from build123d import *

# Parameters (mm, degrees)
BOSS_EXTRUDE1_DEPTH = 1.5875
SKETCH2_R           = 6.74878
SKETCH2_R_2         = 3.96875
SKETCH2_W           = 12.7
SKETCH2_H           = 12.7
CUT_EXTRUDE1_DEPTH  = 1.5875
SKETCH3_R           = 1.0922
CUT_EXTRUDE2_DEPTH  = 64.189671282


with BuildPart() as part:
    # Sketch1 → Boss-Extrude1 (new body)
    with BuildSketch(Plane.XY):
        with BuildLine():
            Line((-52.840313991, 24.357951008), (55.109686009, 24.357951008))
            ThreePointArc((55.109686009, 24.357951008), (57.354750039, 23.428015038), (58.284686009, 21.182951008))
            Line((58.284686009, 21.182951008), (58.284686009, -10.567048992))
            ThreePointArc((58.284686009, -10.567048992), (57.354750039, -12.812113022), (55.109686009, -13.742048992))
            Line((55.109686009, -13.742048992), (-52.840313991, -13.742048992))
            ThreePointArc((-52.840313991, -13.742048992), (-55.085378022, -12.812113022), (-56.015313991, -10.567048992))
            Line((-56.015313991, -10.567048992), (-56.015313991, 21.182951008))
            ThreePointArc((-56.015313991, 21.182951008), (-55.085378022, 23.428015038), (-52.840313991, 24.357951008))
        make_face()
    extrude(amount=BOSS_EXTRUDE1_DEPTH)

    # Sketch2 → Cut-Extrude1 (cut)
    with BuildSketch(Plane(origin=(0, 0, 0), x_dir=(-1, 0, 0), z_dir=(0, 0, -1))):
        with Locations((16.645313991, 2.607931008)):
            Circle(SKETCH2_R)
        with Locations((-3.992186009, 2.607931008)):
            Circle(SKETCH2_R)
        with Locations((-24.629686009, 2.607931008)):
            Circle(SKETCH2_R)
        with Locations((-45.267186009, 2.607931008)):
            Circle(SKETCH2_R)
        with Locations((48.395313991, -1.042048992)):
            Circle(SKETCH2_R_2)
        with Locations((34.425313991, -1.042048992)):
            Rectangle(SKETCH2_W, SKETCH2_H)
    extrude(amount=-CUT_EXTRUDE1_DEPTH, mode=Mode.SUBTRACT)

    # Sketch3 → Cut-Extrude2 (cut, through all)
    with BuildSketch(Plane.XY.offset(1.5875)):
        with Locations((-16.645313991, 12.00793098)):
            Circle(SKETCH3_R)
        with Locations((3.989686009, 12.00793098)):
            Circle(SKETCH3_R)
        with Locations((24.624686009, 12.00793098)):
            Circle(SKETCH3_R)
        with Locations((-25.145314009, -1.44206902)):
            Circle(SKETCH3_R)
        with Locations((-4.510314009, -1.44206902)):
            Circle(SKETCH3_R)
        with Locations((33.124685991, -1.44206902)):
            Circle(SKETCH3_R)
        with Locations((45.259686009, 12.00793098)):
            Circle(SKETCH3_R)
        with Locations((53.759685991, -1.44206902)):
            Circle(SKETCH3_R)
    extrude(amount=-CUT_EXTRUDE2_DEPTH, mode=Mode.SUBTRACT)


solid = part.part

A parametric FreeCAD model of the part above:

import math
import FreeCAD as App
import Part
import Sketcher
from FreeCAD import Vector
Q = App.Units.Quantity


def add_polygon(sketch, points):
    """Adds a closed chain of lines whose ends are joined by coincident constraints."""
    first, n = sketch.GeometryCount, len(points)
    for a, b in zip(points, points[1:] + points[:1]):
        sketch.addGeometry(Part.LineSegment(App.Vector(*a, 0), App.Vector(*b, 0)), False)
    for i in range(n):
        sketch.addConstraint(Sketcher.Constraint("Coincident", first + i, 2, first + (i + 1) % n, 1))

doc = App.newDocument("Part")
params = doc.addObject("Spreadsheet::Sheet", "Params")
for row, (alias, value) in enumerate([
    ("sketch1_radius", "0.125 in"),
    ("sketch1_width", "4.25 in"),
    ("sketch1_height", "1.25 in"),
    ("pad1_length", "0.0625 in"),
    ("sketch2_diameter", "0.3125 in"),
    ("sketch2_width", "0.5 in"),
    ("pocket1_length", "0.0625 in"),
    ("sketch3_diameter", "0.086 in"),
], start=1):
    params.set(f"A{row}", alias)
    params.set(f"B{row}", "=" + value)
    params.setAlias(f"B{row}", alias)

body = doc.addObject("PartDesign::Body", "Body")

# Sketch on XY plane
sketch1 = body.newObject("Sketcher::SketchObject", "Sketch")
sketch1.AttachmentSupport = (doc.getObject("XY_Plane"), [""])
sketch1.MapMode = "FlatFace"
sketch1.addGeometry(Part.LineSegment(Vector(55.109686, 24.357951, 0), Vector(-52.840314, 24.357951, 0)), False)
sketch1.addGeometry(Part.ArcOfCircle(Part.Circle(Vector(-52.840314, 21.182951, 0), Vector(0, 0, 1), 3.175), math.radians(90), math.radians(180)), False)
sketch1.addGeometry(Part.LineSegment(Vector(-56.015314, 21.182951, 0), Vector(-56.015314, -10.567049, 0)), False)
sketch1.addGeometry(Part.ArcOfCircle(Part.Circle(Vector(-52.840314, -10.567049, 0), Vector(0, 0, 1), 3.175), math.radians(180), math.radians(270)), False)
sketch1.addGeometry(Part.LineSegment(Vector(-52.840314, -13.742049, 0), Vector(55.109686, -13.742049, 0)), False)
sketch1.addGeometry(Part.ArcOfCircle(Part.Circle(Vector(55.109686, -10.567049, 0), Vector(0, 0, 1), 3.175), math.radians(-90), math.radians(0)), False)
sketch1.addGeometry(Part.LineSegment(Vector(58.284686, -10.567049, 0), Vector(58.284686, 21.182951, 0)), False)
sketch1.addGeometry(Part.ArcOfCircle(Part.Circle(Vector(55.109686, 21.182951, 0), Vector(0, 0, 1), 3.175), math.radians(0), math.radians(90)), False)
sketch1.addConstraint(Sketcher.Constraint("Tangent", 0, 2, 1, 1))
sketch1.addConstraint(Sketcher.Constraint("Tangent", 1, 2, 2, 1))
sketch1.addConstraint(Sketcher.Constraint("Tangent", 2, 2, 3, 1))
sketch1.addConstraint(Sketcher.Constraint("Tangent", 3, 2, 4, 1))
sketch1.addConstraint(Sketcher.Constraint("Tangent", 4, 2, 5, 1))
sketch1.addConstraint(Sketcher.Constraint("Tangent", 5, 2, 6, 1))
sketch1.addConstraint(Sketcher.Constraint("Tangent", 6, 2, 7, 1))
sketch1.addConstraint(Sketcher.Constraint("Tangent", 7, 2, 0, 1))
sketch1.addConstraint(Sketcher.Constraint("Horizontal", 0))
sketch1.addConstraint(Sketcher.Constraint("Vertical", 2))
sketch1.addConstraint(Sketcher.Constraint("Horizontal", 4))
sketch1.addConstraint(Sketcher.Constraint("Vertical", 6))
sketch1.addConstraint(Sketcher.Constraint("Equal", 1, 3))
sketch1.addConstraint(Sketcher.Constraint("Equal", 3, 5))
sketch1.addConstraint(Sketcher.Constraint("Equal", 5, 7))
sketch1.addConstraint(Sketcher.Constraint("Radius", 1, Q("0.125 in")))
sketch1.addConstraint(Sketcher.Constraint("DistanceX", 0, 2, 0, 1, Q("4.25 in")))
sketch1.addConstraint(Sketcher.Constraint("DistanceY", 2, 2, 2, 1, Q("1.25 in")))
sketch1.addConstraint(Sketcher.Constraint("DistanceY", -1, 1, 1, 3, Q("21.182951 mm")))
sketch1.addConstraint(Sketcher.Constraint("DistanceX", 1, 3, -1, 1, Q("52.840314 mm")))
sketch1.setExpression("Constraints[15]", "Params.sketch1_radius")
sketch1.setExpression("Constraints[16]", "Params.sketch1_width")
sketch1.setExpression("Constraints[17]", "Params.sketch1_height")
pad1 = body.newObject("PartDesign::Pad", "Pad")
pad1.Profile = sketch1
pad1.setExpression("Length", "Params.pad1_length")

# Sketch on XY plane
sketch2 = body.newObject("Sketcher::SketchObject", "Sketch001")
sketch2.AttachmentSupport = (doc.getObject("XY_Plane"), [""])
sketch2.MapMode = "FlatFace"
sketch2.addGeometry(Part.Circle(Vector(-16.645314, 2.607931, 0), Vector(0, 0, 1), 6.74878), False)  # 0
sketch2.addGeometry(Part.Circle(Vector(3.992186, 2.607931, 0), Vector(0, 0, 1), 6.74878), False)  # 1
sketch2.addGeometry(Part.Circle(Vector(24.629686, 2.607931, 0), Vector(0, 0, 1), 6.74878), False)  # 2
sketch2.addGeometry(Part.Circle(Vector(45.267186, 2.607931, 0), Vector(0, 0, 1), 6.74878), False)  # 3
sketch2.addGeometry(Part.Circle(Vector(-48.395314, -1.042049, 0), Vector(0, 0, 1), 3.96875), False)  # 4
add_polygon(sketch2, [(-28.075314, 5.307951), (-28.075314, -7.392049), (-40.775314, -7.392049), (-40.775314, 5.307951)])  # lines 5-8
sketch2.addConstraint(Sketcher.Constraint("Vertical", 5))
sketch2.addConstraint(Sketcher.Constraint("Horizontal", 6))
sketch2.addConstraint(Sketcher.Constraint("Vertical", 7))
sketch2.addConstraint(Sketcher.Constraint("Horizontal", 8))
sketch2.addConstraint(Sketcher.Constraint("Equal", 0, 1))
sketch2.addConstraint(Sketcher.Constraint("Equal", 1, 2))
sketch2.addConstraint(Sketcher.Constraint("Equal", 2, 3))
sketch2.addConstraint(Sketcher.Constraint("Horizontal", 0, 3, 1, 3))
sketch2.addConstraint(Sketcher.Constraint("Horizontal", 1, 3, 2, 3))
sketch2.addConstraint(Sketcher.Constraint("Horizontal", 2, 3, 3, 3))
sketch2.addConstraint(Sketcher.Constraint("Equal", 8, 5))
sketch2.addConstraint(Sketcher.Constraint("Diameter", 4, Q("0.3125 in")))
sketch2.addConstraint(Sketcher.Constraint("DistanceX", 6, 2, 6, 1, Q("0.5 in")))
sketch2.addConstraint(Sketcher.Constraint("Diameter", 0, Q("0.5314 in")))
sketch2.addConstraint(Sketcher.Constraint("DistanceX", 4, 3, 5, 2, Q("0.8 in")))
sketch2.addConstraint(Sketcher.Constraint("DistanceX", 4, 3, 0, 3, Q("1.25 in")))
sketch2.addConstraint(Sketcher.Constraint("DistanceY", 5, 2, 4, 3, Q("0.25 in")))
sketch2.addConstraint(Sketcher.Constraint("DistanceX", 0, 3, 1, 3, Q("0.8125 in")))
sketch2.addConstraint(Sketcher.Constraint("DistanceX", 1, 3, 2, 3, Q("0.8125 in")))
sketch2.addConstraint(Sketcher.Constraint("DistanceX", 2, 3, 3, 3, Q("0.8125 in")))
sketch2.addConstraint(Sketcher.Constraint("DistanceY", 4, 3, 0, 3, Q("0.1437 in")))
sketch2.addConstraint(Sketcher.Constraint("DistanceY", -1, 1, 0, 3, Q("2.607931 mm")))
sketch2.addConstraint(Sketcher.Constraint("DistanceX", 0, 3, -1, 1, Q("16.645314 mm")))
sketch2.setExpression("Constraints[15]", "Params.sketch2_diameter")
sketch2.setExpression("Constraints[16]", "Params.sketch2_width")
pocket1 = body.newObject("PartDesign::Pocket", "Pocket")
pocket1.Profile = sketch2
pocket1.setExpression("Length", "Params.pocket1_length")
pocket1.Reversed = True

# Sketch on XY plane
sketch3 = body.newObject("Sketcher::SketchObject", "Sketch002")
sketch3.AttachmentSupport = (doc.getObject("XY_Plane"), [""])
sketch3.MapMode = "FlatFace"
sketch3.AttachmentOffset = App.Placement(Vector(0, 0, 0.0625 * 25.4), App.Rotation())
sketch3.addGeometry(Part.Circle(Vector(-16.645314, 12.007931, 0), Vector(0, 0, 1), 1.0922), False)
sketch3.addGeometry(Part.Circle(Vector(3.989686, 12.007931, 0), Vector(0, 0, 1), 1.0922), False)
sketch3.addGeometry(Part.Circle(Vector(24.624686, 12.007931, 0), Vector(0, 0, 1), 1.0922), False)
sketch3.addGeometry(Part.Circle(Vector(-25.145314, -1.442069, 0), Vector(0, 0, 1), 1.0922), False)
sketch3.addGeometry(Part.Circle(Vector(-4.510314, -1.442069, 0), Vector(0, 0, 1), 1.0922), False)
sketch3.addGeometry(Part.Circle(Vector(33.124686, -1.442069, 0), Vector(0, 0, 1), 1.0922), False)
sketch3.addGeometry(Part.Circle(Vector(45.259686, 12.007931, 0), Vector(0, 0, 1), 1.0922), False)
sketch3.addGeometry(Part.Circle(Vector(53.759686, -1.442069, 0), Vector(0, 0, 1), 1.0922), False)
sketch3.addConstraint(Sketcher.Constraint("Equal", 0, 1))
sketch3.addConstraint(Sketcher.Constraint("Equal", 1, 2))
sketch3.addConstraint(Sketcher.Constraint("Equal", 2, 3))
sketch3.addConstraint(Sketcher.Constraint("Equal", 3, 4))
sketch3.addConstraint(Sketcher.Constraint("Equal", 4, 5))
sketch3.addConstraint(Sketcher.Constraint("Equal", 5, 6))
sketch3.addConstraint(Sketcher.Constraint("Equal", 6, 7))
sketch3.addConstraint(Sketcher.Constraint("Horizontal", 0, 3, 1, 3))
sketch3.addConstraint(Sketcher.Constraint("Horizontal", 1, 3, 2, 3))
sketch3.addConstraint(Sketcher.Constraint("Horizontal", 3, 3, 4, 3))
sketch3.addConstraint(Sketcher.Constraint("Horizontal", 4, 3, 5, 3))
sketch3.addConstraint(Sketcher.Constraint("Horizontal", 2, 3, 6, 3))
sketch3.addConstraint(Sketcher.Constraint("Horizontal", 5, 3, 7, 3))
sketch3.addConstraint(Sketcher.Constraint("Diameter", 0, Q("0.086 in")))
sketch3.addConstraint(Sketcher.Constraint("DistanceX", 0, 3, 1, 3, Q("20.635 mm")))
sketch3.addConstraint(Sketcher.Constraint("DistanceX", 1, 3, 2, 3, Q("20.635 mm")))
sketch3.addConstraint(Sketcher.Constraint("DistanceX", 3, 3, 0, 3, Q("8.5 mm")))
sketch3.addConstraint(Sketcher.Constraint("DistanceY", 3, 3, 0, 3, Q("13.45 mm")))
sketch3.addConstraint(Sketcher.Constraint("DistanceX", 4, 3, 1, 3, Q("8.5 mm")))
sketch3.addConstraint(Sketcher.Constraint("DistanceX", 2, 3, 5, 3, Q("8.5 mm")))
sketch3.addConstraint(Sketcher.Constraint("DistanceX", 5, 3, 6, 3, Q("12.135 mm")))
sketch3.addConstraint(Sketcher.Constraint("DistanceX", 6, 3, 7, 3, Q("8.5 mm")))
sketch3.addConstraint(Sketcher.Constraint("DistanceY", -1, 1, 0, 3, Q("12.007931 mm")))
sketch3.addConstraint(Sketcher.Constraint("DistanceX", 0, 3, -1, 1, Q("16.645314 mm")))
sketch3.setExpression("Constraints[13]", "Params.sketch3_diameter")
pocket2 = body.newObject("PartDesign::Pocket", "Pocket001")
pocket2.Profile = sketch3
pocket2.Type = "ThroughAll"

doc.recompute()
